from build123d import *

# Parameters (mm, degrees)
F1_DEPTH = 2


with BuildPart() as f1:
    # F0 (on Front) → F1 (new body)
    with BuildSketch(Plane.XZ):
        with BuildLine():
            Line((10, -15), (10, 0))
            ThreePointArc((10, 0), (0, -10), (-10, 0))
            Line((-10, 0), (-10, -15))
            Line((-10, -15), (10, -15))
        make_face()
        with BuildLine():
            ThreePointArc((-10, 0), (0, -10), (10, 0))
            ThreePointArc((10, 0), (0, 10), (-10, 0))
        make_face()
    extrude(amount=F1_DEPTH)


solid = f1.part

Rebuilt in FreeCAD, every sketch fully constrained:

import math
import FreeCAD as App
import Part
import Sketcher

V = App.Vector

doc = App.newDocument("Part")
body = doc.addObject("PartDesign::Body", "Body")

sketch1 = doc.addObject("Sketcher::SketchObject", "Sketch")
body.addObject(sketch1)
sketch1.AttachmentSupport = (doc.XZ_Plane, [""])
sketch1.MapMode = "FlatFace"
sketch1.addGeometry([
    Part.LineSegment(V(10, -15, 0), V(10, 0, 0)),
    Part.ArcOfCircle(Part.Circle(V(0, 0, 0), V(0, 0, 1), 10), math.radians(0), math.radians(180)),
    Part.LineSegment(V(-10, 0, 0), V(-10, -15, 0)),
    Part.LineSegment(V(-10, -15, 0), V(10, -15, 0)),
], False)
sketch1.addConstraint([
    Sketcher.Constraint("Tangent", 0, 2, 1, 1),
    Sketcher.Constraint("Tangent", 1, 2, 2, 1),
    Sketcher.Constraint("Coincident", 2, 2, 3, 1),
    Sketcher.Constraint("Coincident", 3, 2, 0, 1),
    Sketcher.Constraint("Vertical", 0),
    Sketcher.Constraint("Vertical", 2),
    Sketcher.Constraint("Horizontal", 3),
    Sketcher.Constraint("Coincident", 1, 3, -1, 1),
    Sketcher.Constraint("Radius", 1, 10.0),
    Sketcher.Constraint("DistanceY", 0, 1, 0, 2, 15.0),
])
pad1 = doc.addObject("PartDesign::Pad", "Pad")
body.addObject(pad1)
pad1.Profile = sketch1
pad1.Length = 2

doc.recompute()
